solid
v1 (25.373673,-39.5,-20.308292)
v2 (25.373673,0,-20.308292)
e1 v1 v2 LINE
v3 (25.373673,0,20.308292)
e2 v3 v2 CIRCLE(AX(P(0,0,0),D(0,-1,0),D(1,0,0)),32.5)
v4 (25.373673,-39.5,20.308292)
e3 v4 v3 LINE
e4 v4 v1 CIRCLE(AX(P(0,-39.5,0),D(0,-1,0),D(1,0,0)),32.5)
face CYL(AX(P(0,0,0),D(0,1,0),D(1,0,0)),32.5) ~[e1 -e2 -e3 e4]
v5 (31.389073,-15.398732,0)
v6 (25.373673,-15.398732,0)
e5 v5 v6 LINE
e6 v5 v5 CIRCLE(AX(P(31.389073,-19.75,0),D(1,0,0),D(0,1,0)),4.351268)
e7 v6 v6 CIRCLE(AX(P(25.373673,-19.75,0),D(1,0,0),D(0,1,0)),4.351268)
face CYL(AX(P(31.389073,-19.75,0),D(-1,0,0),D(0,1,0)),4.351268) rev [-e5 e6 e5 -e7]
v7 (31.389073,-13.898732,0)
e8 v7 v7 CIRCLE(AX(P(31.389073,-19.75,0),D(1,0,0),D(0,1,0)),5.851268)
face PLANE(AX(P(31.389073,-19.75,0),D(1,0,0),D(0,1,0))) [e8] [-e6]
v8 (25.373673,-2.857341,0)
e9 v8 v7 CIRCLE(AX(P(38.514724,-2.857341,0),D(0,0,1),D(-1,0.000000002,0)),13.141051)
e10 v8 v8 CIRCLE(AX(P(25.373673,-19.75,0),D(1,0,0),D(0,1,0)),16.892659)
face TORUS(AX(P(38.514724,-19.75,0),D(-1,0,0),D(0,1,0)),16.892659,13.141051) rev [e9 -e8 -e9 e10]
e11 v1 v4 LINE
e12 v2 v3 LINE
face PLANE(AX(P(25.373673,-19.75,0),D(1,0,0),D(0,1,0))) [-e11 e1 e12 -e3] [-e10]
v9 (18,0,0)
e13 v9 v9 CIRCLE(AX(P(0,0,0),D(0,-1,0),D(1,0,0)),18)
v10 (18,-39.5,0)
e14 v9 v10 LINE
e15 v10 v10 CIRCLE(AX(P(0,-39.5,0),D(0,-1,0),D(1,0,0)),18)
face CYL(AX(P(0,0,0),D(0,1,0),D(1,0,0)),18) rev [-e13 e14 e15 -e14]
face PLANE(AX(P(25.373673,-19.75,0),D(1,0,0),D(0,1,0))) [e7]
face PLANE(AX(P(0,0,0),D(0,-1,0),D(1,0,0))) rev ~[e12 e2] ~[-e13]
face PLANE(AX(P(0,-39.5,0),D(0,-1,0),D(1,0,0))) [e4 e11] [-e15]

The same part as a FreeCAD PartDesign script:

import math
import FreeCAD as App
import Part
import Sketcher

V = App.Vector
Q = App.Units.Quantity

doc = App.newDocument("Part")
body = doc.addObject("PartDesign::Body", "Body")

# Sketch on XZ plane
sketch1 = body.newObject("Sketcher::SketchObject", "Sketch")
sketch1.AttachmentSupport = (doc.getObject("XZ_Plane"), [""])
sketch1.MapMode = "FlatFace"
sketch1.addGeometry([
    Part.Circle(V(0, 0, 0), V(0, 0, 1), 32),
    Part.Circle(V(0, 0, 0), V(0, 0, 1), 18),
], False)
sketch1.addConstraint([
    Sketcher.Constraint("Coincident", 0, 3, -1, 1),
    Sketcher.Constraint("Coincident", 1, 3, -1, 1),
    Sketcher.Constraint("Diameter", 0, Q("65 mm")),
    Sketcher.Constraint("Diameter", 1, Q("36 mm")),
])
pad1 = body.newObject("PartDesign::Pad", "Pad")
pad1.Profile = sketch1
pad1.Length = 39.5

# Sketch on XY plane
sketch2 = body.newObject("Sketcher::SketchObject", "Sketch001")
sketch2.AttachmentSupport = (doc.getObject("XY_Plane"), [""])
sketch2.MapMode = "FlatFace"
sketch2.addGeometry([
    Part.LineSegment(V(31.4, -15.4, 0), V(25.4, -15.4, 0)),  # 0
    Part.LineSegment(V(25.4, -15.4, 0), V(25.4, -19.8, 0)),  # 1
    Part.LineSegment(V(25.4, -19.8, 0), V(38.3, -19.8, 0)),  # 2
    Part.LineSegment(V(38.3, -19.8, 0), V(38.3, 10, 0)),  # 3
    Part.LineSegment(V(38.3, 10, 0), V(25.4, 10, 0)),  # 4
    Part.LineSegment(V(25.4, 10, 0), V(25.4, -2.9, 0)),  # 5
    Part.ArcOfCircle(Part.Circle(V(38.5, -2.9, 0), V(0, 0, 1), 13.1), math.radians(180), math.radians(237)),  # 6
    Part.LineSegment(V(31.4, -13.9, 0), V(31.4, -15.4, 0)),  # 7
], False)
sketch2.addGeometry(Part.LineSegment(V(25.4, -19.8, 0), V(38.5, -19.8, 0)), True)  # axis
sketch2.addConstraint([
    Sketcher.Constraint("Coincident", 0, 2, 1, 1),
    Sketcher.Constraint("Coincident", 1, 2, 2, 1),
    Sketcher.Constraint("Coincident", 2, 2, 3, 1),
    Sketcher.Constraint("Coincident", 3, 2, 4, 1),
    Sketcher.Constraint("Coincident", 4, 2, 5, 1),
    Sketcher.Constraint("Tangent", 5, 2, 6, 1),
    Sketcher.Constraint("Coincident", 6, 2, 7, 1),
    Sketcher.Constraint("Coincident", 7, 2, 0, 1),
    Sketcher.Constraint("Horizontal", 0),
    Sketcher.Constraint("Vertical", 1),
    Sketcher.Constraint("Horizontal", 2),
    Sketcher.Constraint("Vertical", 3),
    Sketcher.Constraint("Horizontal", 4),
    Sketcher.Constraint("Vertical", 5),
    Sketcher.Constraint("Vertical", 7),
    Sketcher.Constraint("Horizontal", 8),
    Sketcher.Constraint("Coincident", 8, 1, 1, 2),
    Sketcher.Constraint("Vertical", 1, 2, 4, 2),
    Sketcher.Constraint("Vertical", 6, 3, 8, 2),
    Sketcher.Constraint("DistanceY", 7, 2, 7, 1, Q("1.5 mm")),
    Sketcher.Constraint("DistanceY", 1, 2, -1, 1, Q("19.75 mm")),
    Sketcher.Constraint("Radius", 6, Q("13.141051 mm")),
    Sketcher.Constraint("DistanceX", 0, 2, 0, 1, Q("6.0154 mm")),
    Sketcher.Constraint("DistanceX", 2, 1, 2, 2, Q("12.922889 mm")),
    Sketcher.Constraint("DistanceY", 1, 2, 1, 1, Q("4.351268 mm")),
    Sketcher.Constraint("DistanceY", 3, 1, 3, 2, Q("29.700572 mm")),
    Sketcher.Constraint("DistanceX", -1, 1, 6, 3, Q("38.514724 mm")),
])
groove = body.newObject("PartDesign::Groove", "Groove")
groove.Profile = sketch2
groove.ReferenceAxis = (sketch2, ["Axis0"])
groove.Angle = 360

doc.recompute()
